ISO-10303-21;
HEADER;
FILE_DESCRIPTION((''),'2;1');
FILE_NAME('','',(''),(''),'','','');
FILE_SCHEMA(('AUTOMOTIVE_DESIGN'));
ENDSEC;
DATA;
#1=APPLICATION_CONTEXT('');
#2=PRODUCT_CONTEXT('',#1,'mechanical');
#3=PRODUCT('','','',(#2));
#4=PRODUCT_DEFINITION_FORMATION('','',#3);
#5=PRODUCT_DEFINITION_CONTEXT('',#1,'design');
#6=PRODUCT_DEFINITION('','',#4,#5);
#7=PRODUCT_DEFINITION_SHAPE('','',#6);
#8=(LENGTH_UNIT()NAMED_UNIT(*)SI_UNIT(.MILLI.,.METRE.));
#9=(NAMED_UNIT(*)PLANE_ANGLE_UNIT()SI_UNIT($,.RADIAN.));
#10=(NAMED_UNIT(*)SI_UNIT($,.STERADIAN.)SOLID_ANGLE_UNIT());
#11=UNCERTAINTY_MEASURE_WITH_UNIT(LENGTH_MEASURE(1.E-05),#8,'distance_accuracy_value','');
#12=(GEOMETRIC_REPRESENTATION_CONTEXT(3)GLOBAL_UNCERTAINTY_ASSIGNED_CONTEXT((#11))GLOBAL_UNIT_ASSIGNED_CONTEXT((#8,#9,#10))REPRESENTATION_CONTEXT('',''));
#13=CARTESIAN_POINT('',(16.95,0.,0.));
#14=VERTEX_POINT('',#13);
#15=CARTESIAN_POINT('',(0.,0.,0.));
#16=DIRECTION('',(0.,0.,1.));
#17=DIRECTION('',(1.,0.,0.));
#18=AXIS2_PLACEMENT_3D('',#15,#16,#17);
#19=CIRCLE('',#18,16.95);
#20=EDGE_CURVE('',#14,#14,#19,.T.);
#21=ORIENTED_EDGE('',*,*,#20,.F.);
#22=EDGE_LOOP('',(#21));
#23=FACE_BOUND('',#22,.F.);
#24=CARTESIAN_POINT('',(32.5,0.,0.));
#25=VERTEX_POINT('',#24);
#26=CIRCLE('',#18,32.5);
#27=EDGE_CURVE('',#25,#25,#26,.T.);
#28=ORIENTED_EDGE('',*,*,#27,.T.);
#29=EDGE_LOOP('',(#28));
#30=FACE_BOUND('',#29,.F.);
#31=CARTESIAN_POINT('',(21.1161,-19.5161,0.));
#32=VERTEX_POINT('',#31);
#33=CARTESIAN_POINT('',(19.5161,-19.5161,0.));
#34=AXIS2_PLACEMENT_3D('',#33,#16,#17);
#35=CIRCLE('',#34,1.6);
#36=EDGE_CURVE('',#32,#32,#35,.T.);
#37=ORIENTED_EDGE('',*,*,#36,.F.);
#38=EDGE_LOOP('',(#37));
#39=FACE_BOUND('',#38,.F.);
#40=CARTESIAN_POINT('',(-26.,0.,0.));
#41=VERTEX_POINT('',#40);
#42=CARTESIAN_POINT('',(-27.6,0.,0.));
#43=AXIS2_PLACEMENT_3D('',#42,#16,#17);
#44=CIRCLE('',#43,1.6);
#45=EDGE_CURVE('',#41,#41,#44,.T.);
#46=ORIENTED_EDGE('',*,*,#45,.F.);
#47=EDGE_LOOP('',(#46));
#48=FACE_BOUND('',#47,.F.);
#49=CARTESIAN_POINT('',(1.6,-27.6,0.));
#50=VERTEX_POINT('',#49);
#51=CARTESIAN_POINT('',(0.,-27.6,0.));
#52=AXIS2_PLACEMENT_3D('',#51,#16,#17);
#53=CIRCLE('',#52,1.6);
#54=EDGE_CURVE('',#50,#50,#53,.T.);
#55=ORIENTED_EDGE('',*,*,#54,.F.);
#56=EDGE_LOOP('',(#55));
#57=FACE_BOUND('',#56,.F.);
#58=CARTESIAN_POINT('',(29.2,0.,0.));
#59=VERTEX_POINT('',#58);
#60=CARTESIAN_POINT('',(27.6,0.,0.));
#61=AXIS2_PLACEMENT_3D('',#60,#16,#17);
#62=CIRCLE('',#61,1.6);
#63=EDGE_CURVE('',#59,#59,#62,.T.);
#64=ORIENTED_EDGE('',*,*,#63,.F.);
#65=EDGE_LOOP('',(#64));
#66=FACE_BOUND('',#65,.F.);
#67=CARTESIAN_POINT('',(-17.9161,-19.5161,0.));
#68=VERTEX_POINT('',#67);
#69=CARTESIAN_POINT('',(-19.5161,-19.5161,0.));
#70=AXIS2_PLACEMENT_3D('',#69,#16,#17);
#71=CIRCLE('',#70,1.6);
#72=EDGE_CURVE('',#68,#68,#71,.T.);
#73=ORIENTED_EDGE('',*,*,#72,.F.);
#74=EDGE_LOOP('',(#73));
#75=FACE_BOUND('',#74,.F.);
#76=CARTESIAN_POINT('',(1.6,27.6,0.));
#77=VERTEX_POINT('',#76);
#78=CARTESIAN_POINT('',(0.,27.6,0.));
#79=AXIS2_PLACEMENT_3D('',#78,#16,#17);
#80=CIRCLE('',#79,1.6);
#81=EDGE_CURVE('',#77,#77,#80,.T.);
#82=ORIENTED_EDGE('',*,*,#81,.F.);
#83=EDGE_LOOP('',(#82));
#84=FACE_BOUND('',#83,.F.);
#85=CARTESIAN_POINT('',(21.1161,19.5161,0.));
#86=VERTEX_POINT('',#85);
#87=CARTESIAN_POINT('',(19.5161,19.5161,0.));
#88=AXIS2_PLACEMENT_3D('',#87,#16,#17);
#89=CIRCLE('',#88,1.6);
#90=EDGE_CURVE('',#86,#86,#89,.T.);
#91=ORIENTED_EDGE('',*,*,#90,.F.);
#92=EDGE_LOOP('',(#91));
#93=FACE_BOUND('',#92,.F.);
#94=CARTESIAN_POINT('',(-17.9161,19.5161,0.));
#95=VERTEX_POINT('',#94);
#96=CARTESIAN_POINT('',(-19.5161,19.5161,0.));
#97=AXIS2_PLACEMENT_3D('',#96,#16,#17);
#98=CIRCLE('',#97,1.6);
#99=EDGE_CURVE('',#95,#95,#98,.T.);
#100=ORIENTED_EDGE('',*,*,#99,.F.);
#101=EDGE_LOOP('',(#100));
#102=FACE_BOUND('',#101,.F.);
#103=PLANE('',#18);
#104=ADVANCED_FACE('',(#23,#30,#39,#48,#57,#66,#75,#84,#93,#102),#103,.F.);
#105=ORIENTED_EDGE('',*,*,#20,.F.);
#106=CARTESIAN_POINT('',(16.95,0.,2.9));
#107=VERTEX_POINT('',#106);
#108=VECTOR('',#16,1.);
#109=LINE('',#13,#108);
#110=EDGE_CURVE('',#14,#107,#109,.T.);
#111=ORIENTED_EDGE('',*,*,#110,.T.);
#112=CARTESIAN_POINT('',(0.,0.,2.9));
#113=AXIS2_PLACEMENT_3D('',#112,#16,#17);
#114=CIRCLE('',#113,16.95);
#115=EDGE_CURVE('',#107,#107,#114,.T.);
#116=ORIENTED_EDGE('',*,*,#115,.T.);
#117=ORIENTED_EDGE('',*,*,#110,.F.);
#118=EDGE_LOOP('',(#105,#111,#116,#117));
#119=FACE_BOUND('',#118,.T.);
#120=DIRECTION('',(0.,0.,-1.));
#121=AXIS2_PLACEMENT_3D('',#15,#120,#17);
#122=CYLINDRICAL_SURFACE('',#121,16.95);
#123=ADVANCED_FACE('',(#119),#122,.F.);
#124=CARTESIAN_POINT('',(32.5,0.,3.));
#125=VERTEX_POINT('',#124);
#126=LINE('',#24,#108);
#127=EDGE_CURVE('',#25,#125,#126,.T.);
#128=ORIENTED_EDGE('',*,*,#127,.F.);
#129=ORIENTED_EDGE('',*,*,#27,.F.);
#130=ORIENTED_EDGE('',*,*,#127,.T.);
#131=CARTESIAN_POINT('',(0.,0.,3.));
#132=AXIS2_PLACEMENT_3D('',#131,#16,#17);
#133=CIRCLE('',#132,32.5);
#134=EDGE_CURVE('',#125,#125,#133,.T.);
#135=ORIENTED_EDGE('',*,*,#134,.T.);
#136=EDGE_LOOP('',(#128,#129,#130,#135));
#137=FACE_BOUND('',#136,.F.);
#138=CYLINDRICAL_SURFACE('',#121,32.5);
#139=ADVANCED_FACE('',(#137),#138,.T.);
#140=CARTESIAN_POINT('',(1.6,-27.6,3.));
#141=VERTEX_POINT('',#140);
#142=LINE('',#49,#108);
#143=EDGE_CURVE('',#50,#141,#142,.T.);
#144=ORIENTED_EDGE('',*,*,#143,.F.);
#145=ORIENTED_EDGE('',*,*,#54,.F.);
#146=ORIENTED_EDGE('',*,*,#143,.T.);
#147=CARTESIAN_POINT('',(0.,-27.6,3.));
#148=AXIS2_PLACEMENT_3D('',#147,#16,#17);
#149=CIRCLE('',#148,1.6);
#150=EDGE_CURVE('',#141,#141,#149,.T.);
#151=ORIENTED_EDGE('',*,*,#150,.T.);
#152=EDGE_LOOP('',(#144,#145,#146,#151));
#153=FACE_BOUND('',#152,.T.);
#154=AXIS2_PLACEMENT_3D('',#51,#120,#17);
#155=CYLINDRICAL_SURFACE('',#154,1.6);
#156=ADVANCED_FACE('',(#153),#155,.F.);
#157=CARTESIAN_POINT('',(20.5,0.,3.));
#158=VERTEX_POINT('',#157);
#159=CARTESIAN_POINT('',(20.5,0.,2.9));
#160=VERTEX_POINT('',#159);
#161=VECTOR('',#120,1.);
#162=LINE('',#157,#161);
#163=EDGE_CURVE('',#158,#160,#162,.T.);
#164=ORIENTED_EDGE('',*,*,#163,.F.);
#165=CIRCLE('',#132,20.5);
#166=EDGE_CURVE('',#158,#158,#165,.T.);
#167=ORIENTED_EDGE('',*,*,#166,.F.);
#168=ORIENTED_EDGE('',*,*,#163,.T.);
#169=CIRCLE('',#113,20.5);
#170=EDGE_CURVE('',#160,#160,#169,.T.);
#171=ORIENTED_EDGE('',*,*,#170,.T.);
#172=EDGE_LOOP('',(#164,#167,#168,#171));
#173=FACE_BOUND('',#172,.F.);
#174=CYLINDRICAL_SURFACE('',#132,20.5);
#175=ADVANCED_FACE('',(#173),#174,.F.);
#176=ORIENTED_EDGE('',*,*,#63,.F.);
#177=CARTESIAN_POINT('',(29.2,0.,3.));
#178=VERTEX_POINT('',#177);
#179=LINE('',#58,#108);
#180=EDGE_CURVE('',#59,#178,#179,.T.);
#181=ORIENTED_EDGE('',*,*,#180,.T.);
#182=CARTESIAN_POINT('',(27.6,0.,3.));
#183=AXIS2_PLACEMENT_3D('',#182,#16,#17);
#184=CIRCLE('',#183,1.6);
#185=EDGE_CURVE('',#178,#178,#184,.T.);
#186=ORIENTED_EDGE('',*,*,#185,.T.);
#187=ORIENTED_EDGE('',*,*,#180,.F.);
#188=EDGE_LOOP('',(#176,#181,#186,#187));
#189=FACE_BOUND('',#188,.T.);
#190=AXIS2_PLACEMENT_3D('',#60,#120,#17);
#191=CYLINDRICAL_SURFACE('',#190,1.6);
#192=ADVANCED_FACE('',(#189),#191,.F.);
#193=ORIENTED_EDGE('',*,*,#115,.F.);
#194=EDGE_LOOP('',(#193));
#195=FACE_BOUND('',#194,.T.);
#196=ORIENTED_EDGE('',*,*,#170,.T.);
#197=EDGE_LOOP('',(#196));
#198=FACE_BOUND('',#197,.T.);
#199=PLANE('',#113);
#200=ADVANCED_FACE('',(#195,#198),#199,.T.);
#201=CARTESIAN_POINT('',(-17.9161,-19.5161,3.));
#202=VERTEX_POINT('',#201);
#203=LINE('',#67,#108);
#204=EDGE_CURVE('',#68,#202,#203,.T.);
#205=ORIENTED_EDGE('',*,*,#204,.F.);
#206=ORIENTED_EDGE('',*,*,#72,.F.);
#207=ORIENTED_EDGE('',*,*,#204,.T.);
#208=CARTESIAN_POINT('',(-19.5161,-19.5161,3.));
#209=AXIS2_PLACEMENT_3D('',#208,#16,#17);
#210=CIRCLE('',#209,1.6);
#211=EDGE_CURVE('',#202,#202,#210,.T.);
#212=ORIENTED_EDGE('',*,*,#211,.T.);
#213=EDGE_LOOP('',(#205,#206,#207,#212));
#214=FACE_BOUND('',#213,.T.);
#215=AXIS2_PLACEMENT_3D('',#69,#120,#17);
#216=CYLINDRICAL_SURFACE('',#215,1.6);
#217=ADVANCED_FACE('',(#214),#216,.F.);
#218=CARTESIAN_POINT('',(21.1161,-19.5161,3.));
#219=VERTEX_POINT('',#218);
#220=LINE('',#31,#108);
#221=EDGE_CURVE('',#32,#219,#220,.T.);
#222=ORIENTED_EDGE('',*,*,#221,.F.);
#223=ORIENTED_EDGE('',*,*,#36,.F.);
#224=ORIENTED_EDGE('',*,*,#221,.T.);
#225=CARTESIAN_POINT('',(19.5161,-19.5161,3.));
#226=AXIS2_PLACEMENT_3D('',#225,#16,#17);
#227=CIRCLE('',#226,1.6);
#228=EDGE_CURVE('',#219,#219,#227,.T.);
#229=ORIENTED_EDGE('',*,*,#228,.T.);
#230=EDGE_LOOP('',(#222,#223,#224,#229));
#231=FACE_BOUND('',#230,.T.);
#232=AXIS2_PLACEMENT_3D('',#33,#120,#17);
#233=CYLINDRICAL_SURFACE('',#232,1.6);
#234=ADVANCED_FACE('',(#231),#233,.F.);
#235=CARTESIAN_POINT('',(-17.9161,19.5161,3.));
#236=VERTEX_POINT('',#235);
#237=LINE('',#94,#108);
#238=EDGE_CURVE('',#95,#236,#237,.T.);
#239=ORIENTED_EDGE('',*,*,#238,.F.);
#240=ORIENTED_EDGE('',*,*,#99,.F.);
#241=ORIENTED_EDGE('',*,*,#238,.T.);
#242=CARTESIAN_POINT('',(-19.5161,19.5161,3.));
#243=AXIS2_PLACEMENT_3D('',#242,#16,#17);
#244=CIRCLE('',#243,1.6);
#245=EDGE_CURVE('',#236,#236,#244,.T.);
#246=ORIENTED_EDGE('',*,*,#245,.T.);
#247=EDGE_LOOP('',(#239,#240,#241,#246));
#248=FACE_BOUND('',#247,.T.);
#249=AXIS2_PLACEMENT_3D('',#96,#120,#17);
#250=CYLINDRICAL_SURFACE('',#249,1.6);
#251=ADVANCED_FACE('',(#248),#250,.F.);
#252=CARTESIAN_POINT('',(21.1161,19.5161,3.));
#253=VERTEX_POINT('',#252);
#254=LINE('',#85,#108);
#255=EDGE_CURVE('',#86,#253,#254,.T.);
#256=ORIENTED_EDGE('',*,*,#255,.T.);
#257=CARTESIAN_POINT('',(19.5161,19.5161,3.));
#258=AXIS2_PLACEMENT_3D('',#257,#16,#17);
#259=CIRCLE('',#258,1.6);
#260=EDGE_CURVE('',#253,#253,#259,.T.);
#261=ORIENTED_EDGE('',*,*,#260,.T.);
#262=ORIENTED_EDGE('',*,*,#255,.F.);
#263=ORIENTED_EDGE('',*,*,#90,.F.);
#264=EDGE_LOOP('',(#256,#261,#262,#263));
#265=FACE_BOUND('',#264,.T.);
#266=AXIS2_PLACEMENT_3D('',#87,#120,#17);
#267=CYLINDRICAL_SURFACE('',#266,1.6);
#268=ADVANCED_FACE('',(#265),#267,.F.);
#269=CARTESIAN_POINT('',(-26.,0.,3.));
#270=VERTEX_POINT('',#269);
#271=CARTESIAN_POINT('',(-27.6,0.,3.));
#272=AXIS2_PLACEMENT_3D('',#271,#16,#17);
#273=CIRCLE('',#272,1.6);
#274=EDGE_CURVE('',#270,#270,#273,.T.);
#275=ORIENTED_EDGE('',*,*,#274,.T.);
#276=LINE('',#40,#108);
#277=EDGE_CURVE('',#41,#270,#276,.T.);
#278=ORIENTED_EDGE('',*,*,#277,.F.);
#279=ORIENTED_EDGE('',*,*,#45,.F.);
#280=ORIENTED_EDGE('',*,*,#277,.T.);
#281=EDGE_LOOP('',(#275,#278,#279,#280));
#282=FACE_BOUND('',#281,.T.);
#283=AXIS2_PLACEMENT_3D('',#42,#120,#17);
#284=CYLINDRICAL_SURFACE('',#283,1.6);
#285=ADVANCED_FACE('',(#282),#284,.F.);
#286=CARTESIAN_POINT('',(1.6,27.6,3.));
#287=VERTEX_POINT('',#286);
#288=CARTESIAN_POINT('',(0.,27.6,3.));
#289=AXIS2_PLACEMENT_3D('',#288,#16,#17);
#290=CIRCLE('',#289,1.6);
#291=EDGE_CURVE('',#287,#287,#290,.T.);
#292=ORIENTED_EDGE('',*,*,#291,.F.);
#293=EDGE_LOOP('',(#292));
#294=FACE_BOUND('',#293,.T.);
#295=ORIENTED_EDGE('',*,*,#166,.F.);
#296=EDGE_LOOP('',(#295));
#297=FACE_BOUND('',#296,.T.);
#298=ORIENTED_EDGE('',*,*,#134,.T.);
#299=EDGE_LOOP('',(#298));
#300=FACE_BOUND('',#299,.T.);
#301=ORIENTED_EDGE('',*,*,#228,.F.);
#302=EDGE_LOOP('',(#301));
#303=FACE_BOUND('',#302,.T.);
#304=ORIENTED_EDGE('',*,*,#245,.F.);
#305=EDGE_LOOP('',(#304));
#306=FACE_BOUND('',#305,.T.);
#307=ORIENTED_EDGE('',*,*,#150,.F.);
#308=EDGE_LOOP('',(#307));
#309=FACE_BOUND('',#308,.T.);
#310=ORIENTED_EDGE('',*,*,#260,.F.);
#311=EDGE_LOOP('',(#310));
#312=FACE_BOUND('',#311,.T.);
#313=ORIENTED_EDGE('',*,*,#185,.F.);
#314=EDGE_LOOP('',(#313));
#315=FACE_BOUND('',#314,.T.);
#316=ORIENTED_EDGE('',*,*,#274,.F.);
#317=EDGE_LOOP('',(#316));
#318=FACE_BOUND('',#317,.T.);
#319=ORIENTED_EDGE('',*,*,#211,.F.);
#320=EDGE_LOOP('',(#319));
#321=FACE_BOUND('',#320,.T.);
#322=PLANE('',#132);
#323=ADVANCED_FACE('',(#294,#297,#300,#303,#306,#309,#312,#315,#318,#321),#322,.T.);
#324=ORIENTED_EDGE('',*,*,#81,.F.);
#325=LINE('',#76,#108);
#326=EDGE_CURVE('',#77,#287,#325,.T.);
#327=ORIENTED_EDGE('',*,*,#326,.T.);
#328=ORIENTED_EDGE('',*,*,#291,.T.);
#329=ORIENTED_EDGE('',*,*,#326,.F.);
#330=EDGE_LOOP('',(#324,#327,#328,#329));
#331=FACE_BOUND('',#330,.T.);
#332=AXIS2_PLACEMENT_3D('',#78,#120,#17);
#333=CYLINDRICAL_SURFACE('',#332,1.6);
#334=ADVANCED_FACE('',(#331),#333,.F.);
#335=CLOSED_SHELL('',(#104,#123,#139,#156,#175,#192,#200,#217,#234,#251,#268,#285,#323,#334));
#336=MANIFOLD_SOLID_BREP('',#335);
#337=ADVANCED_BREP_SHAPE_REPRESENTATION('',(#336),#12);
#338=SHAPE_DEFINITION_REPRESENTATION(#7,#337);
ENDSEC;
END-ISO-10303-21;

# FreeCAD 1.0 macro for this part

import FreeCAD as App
import Part
import Sketcher
from FreeCAD import Vector

doc = App.newDocument("Part")
body = doc.addObject("PartDesign::Body", "Body")

# Sketch on XY plane
sketch1 = doc.addObject("Sketcher::SketchObject", "Sketch")
body.addObject(sketch1)
sketch1.AttachmentSupport = (doc.XY_Plane, [""])
sketch1.MapMode = "FlatFace"
sketch1.addGeometry([
    Part.Circle(Vector(0, 0, 0), Vector(0, 0, 1), 32.5),  # 0
    Part.Circle(Vector(-19.5161, -19.5161, 0), Vector(0, 0, 1), 1.6),  # 1
    Part.Circle(Vector(0, -27.6, 0), Vector(0, 0, 1), 1.6),  # 2
    Part.Circle(Vector(19.5161, -19.5161, 0), Vector(0, 0, 1), 1.6),  # 3
    Part.Circle(Vector(-27.6, 0, 0), Vector(0, 0, 1), 1.6),  # 4
    Part.Circle(Vector(-19.5161, 19.5161, 0), Vector(0, 0, 1), 1.6),  # 5
    Part.Circle(Vector(0, 0, 0), Vector(0, 0, 1), 16.95),  # 6
    Part.Circle(Vector(27.6, 0, 0), Vector(0, 0, 1), 1.6),  # 7
    Part.Circle(Vector(0, 27.6, 0), Vector(0, 0, 1), 1.6),  # 8
    Part.Circle(Vector(19.5161, 19.5161, 0), Vector(0, 0, 1), 1.6),  # 9
], False)
sketch1.addConstraint([
    Sketcher.Constraint("Coincident", 0, 3, -1, 1),
    Sketcher.Constraint("Coincident", 6, 3, -1, 1),
    Sketcher.Constraint("Equal", 1, 2),
    Sketcher.Constraint("Equal", 2, 3),
    Sketcher.Constraint("Equal", 3, 4),
    Sketcher.Constraint("Equal", 4, 5),
    Sketcher.Constraint("Equal", 5, 7),
    Sketcher.Constraint("Equal", 7, 8),
    Sketcher.Constraint("Equal", 8, 9),
    Sketcher.Constraint("Symmetric", 3, 3, 5, 3, -1, 1),
    Sketcher.Constraint("Symmetric", 4, 3, 7, 3, -1, 1),
    Sketcher.Constraint("Symmetric", 2, 3, 8, 3, -1, 1),
    Sketcher.Constraint("Symmetric", 1, 3, 9, 3, -1, 1),
    Sketcher.Constraint("Symmetric", 1, 3, 3, 3, -2),
    Sketcher.Constraint("PointOnObject", 2, 3, -2),
    Sketcher.Constraint("PointOnObject", 4, 3, -1),
    Sketcher.Constraint("Diameter", 0, 65.0),
    Sketcher.Constraint("Diameter", 1, 3.2),
    Sketcher.Constraint("Diameter", 6, 33.9),
    Sketcher.Constraint("DistanceY", 2, 3, -1, 1, 27.6),
    Sketcher.Constraint("DistanceX", 4, 3, -1, 1, 27.6),
    Sketcher.Constraint("DistanceX", 1, 3, -1, 1, 19.516),
    Sketcher.Constraint("DistanceY", 1, 3, -1, 1, 19.516),
])
pad1 = doc.addObject("PartDesign::Pad", "Pad")
body.addObject(pad1)
pad1.Profile = sketch1
pad1.Length = 3

# Sketch on XY plane
sketch2 = doc.addObject("Sketcher::SketchObject", "Sketch001")
body.addObject(sketch2)
sketch2.AttachmentSupport = (doc.XY_Plane, [""])
sketch2.MapMode = "FlatFace"
sketch2.AttachmentOffset = App.Placement(Vector(0, 0, 3), App.Rotation())
sketch2.addGeometry([
    Part.Circle(Vector(0, 0, 0), Vector(0, 0, 1), 20.5),
    Part.Circle(Vector(0, 0, 0), Vector(0, 0, 1), 16.95),
], False)
sketch2.addConstraint([
    Sketcher.Constraint("Coincident", 0, 3, -1, 1),
    Sketcher.Constraint("Coincident", 1, 3, -1, 1),
    Sketcher.Constraint("Diameter", 0, 41.0),
    Sketcher.Constraint("Diameter", 1, 33.9),
])
pocket1 = doc.addObject("PartDesign::Pocket", "Pocket")
body.addObject(pocket1)
pocket1.Profile = sketch2
pocket1.Length = 0.1

doc.recompute()
